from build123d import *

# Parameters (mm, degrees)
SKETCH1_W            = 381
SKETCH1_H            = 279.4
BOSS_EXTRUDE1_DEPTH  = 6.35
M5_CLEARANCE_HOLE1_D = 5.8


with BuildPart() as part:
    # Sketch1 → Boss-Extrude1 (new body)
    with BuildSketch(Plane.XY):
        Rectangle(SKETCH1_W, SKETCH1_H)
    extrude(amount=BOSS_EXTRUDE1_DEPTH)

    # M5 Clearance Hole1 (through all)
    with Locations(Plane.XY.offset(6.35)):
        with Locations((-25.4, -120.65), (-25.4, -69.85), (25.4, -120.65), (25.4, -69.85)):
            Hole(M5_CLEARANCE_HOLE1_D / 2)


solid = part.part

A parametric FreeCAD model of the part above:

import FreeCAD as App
import Part
import Sketcher
Q = App.Units.Quantity

doc = App.newDocument("Part")
body = doc.addObject("PartDesign::Body", "Body")

sketch1 = body.newObject("Sketcher::SketchObject", "Sketch")
sketch1.AttachmentSupport = (doc.getObject("XY_Plane"), [""])
sketch1.MapMode = "FlatFace"
sketch1.addGeometry([
    Part.LineSegment(App.Vector(-190.5, 139.7, 0), App.Vector(-190.5, -139.7, 0)),
    Part.LineSegment(App.Vector(-190.5, -139.7, 0), App.Vector(190.5, -139.7, 0)),
    Part.LineSegment(App.Vector(190.5, -139.7, 0), App.Vector(190.5, 139.7, 0)),
    Part.LineSegment(App.Vector(190.5, 139.7, 0), App.Vector(-190.5, 139.7, 0)),
], False)
sketch1.addConstraint([
    Sketcher.Constraint("Coincident", 0, 2, 1, 1),
    Sketcher.Constraint("Coincident", 1, 2, 2, 1),
    Sketcher.Constraint("Coincident", 2, 2, 3, 1),
    Sketcher.Constraint("Coincident", 3, 2, 0, 1),
    Sketcher.Constraint("Vertical", 0),
    Sketcher.Constraint("Horizontal", 1),
    Sketcher.Constraint("Vertical", 2),
    Sketcher.Constraint("Horizontal", 3),
    Sketcher.Constraint("Symmetric", 0, 2, 2, 2, -1, 1),
    Sketcher.Constraint("DistanceX", 1, 1, 1, 2, Q("15 in")),
    Sketcher.Constraint("DistanceY", 0, 2, 0, 1, Q("11 in")),
])
pad1 = body.newObject("PartDesign::Pad", "Pad")
pad1.Profile = sketch1
pad1.Length = Q("0.25 in")

sketch2 = body.newObject("Sketcher::SketchObject", "Sketch001")
sketch2.AttachmentSupport = (doc.getObject("XY_Plane"), [""])
sketch2.MapMode = "FlatFace"
sketch2.AttachmentOffset = App.Placement(App.Vector(0, 0, 0.25 * 25.4), App.Rotation())
sketch2.addGeometry([
    Part.Circle(App.Vector(-25.4, -120.65, 0), App.Vector(0, 0, 1), 2.9),
    Part.Circle(App.Vector(-25.4, -69.85, 0), App.Vector(0, 0, 1), 2.9),
    Part.Circle(App.Vector(25.4, -120.65, 0), App.Vector(0, 0, 1), 2.9),
    Part.Circle(App.Vector(25.4, -69.85, 0), App.Vector(0, 0, 1), 2.9),
], False)
sketch2.addConstraint([
    Sketcher.Constraint("Equal", 0, 1),
    Sketcher.Constraint("Equal", 1, 2),
    Sketcher.Constraint("Equal", 2, 3),
    Sketcher.Constraint("Symmetric", 0, 3, 2, 3, -2),
    Sketcher.Constraint("Symmetric", 1, 3, 3, 3, -2),
    Sketcher.Constraint("Vertical", 0, 3, 1, 3),
    Sketcher.Constraint("DistanceX", 0, 3, -1, 1, Q("1 in")),
    Sketcher.Constraint("DistanceY", 0, 3, 1, 3, Q("2 in")),
    Sketcher.Constraint("Diameter", 0, Q("5.8 mm")),
    Sketcher.Constraint("DistanceY", 0, 3, -1, 1, Q("4.75 in")),
])
doc.recompute()
hole = body.newObject("PartDesign::Hole", "Hole")
hole.Profile = sketch2
hole.ThreadType = "None"
hole.Diameter = 5.8
hole.DepthType = "ThroughAll"

doc.recompute()
